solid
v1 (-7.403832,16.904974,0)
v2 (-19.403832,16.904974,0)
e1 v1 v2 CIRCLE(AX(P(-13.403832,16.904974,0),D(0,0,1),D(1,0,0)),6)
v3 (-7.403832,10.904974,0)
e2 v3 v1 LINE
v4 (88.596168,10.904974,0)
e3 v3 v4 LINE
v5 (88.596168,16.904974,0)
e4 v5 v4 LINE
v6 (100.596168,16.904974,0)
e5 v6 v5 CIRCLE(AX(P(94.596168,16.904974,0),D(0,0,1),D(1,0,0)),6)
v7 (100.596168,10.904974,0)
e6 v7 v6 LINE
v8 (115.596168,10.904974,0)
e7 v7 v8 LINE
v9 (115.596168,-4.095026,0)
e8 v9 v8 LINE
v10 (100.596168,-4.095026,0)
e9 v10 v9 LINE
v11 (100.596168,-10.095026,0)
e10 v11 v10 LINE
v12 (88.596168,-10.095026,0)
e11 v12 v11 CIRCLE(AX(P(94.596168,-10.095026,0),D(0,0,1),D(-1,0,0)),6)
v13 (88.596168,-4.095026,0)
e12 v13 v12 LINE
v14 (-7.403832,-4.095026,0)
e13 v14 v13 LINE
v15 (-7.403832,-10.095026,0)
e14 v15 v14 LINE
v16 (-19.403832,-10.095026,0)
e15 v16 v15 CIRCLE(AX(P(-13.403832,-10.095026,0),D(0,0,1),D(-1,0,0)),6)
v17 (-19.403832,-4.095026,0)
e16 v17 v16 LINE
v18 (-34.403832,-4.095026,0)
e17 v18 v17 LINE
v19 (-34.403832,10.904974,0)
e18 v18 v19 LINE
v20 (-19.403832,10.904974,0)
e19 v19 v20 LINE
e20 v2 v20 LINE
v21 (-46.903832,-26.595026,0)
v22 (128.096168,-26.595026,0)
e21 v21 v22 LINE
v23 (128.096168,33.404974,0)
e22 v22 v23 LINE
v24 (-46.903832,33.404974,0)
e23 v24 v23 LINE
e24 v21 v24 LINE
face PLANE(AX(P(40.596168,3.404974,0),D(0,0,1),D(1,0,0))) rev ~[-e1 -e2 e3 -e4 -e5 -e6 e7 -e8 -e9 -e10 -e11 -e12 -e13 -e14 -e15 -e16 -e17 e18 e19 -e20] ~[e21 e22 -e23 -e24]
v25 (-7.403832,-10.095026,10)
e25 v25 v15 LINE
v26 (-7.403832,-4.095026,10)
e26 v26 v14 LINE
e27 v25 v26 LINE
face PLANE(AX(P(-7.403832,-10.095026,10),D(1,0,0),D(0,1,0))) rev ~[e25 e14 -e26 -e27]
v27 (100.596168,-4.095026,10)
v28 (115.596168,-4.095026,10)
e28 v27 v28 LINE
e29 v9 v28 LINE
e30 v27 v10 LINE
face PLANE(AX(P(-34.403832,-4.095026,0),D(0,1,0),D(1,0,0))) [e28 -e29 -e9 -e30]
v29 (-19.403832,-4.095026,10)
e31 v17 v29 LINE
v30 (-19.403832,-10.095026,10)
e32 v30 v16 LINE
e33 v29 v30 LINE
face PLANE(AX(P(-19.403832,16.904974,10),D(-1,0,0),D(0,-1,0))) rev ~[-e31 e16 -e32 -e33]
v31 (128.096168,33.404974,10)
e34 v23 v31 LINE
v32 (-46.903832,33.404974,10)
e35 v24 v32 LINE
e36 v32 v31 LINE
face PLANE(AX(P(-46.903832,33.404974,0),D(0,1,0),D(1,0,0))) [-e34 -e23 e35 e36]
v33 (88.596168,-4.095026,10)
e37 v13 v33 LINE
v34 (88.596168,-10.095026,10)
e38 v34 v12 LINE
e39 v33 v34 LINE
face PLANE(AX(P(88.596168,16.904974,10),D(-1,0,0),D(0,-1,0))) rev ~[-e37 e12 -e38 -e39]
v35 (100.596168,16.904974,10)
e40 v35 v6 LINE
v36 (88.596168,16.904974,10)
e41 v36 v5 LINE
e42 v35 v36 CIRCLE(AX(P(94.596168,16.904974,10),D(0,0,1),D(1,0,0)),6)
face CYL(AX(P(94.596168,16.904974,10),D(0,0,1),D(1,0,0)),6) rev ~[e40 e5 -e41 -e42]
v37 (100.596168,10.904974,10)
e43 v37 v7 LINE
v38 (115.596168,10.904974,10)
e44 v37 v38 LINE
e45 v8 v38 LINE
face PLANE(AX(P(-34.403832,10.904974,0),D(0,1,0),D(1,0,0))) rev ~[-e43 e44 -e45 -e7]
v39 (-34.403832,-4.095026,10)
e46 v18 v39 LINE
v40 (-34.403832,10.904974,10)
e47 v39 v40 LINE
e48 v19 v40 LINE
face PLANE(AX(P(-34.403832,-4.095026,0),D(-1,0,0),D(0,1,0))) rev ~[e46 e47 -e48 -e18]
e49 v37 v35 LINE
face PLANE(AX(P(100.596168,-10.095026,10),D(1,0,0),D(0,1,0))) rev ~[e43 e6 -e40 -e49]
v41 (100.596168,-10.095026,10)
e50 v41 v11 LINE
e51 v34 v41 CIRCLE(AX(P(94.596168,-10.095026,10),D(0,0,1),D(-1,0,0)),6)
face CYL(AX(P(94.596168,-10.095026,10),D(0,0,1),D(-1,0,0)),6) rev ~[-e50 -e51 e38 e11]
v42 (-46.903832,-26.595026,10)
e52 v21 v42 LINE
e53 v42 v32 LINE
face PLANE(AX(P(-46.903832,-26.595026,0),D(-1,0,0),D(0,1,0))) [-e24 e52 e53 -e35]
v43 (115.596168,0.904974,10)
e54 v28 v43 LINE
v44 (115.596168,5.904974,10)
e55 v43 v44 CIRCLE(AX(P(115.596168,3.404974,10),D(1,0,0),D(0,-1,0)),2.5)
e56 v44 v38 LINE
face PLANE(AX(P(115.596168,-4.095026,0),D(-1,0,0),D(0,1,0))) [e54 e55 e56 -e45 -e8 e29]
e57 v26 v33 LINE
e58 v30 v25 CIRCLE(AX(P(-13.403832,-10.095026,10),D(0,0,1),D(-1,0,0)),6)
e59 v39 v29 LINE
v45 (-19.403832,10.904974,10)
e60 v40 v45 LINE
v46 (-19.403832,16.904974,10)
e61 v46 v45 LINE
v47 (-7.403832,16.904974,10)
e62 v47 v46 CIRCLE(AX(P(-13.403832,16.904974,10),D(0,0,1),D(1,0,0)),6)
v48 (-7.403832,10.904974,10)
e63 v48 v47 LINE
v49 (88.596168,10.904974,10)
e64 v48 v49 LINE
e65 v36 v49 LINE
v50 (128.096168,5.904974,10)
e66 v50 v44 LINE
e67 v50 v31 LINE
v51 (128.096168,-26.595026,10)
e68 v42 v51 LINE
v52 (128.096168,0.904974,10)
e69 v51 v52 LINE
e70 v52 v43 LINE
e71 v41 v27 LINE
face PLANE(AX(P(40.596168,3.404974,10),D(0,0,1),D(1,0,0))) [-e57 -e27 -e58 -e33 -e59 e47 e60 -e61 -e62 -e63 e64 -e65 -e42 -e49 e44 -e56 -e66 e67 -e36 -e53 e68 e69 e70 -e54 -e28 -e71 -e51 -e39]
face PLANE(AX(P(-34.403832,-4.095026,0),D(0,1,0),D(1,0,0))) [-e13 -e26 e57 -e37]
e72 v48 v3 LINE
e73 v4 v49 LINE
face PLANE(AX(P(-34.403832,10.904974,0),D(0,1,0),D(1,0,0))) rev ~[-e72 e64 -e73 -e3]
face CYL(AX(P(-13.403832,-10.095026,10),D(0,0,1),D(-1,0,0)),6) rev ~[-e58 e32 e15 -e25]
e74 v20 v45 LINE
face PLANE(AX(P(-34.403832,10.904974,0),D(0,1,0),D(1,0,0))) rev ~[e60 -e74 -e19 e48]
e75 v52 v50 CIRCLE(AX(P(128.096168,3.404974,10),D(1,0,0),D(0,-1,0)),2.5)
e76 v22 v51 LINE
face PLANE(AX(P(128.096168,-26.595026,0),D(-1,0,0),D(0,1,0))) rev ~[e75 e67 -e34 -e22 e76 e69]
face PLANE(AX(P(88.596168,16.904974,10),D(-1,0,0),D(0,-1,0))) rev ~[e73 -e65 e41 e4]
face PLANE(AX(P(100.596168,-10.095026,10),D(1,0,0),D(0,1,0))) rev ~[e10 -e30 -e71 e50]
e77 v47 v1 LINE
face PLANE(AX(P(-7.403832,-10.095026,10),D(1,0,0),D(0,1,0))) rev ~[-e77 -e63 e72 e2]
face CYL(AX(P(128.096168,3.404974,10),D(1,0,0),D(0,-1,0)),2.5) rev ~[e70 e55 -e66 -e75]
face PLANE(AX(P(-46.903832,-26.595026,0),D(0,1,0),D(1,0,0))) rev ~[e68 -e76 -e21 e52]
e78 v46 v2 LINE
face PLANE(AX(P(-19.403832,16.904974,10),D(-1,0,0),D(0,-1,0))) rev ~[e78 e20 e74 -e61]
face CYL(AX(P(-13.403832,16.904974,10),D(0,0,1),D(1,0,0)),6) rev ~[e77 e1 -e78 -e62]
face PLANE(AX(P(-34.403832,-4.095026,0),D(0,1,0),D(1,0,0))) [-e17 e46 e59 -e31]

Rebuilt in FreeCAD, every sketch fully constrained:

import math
import FreeCAD as App
import Part
import Sketcher
from FreeCAD import Vector
Q = App.Units.Quantity


def add_polygon(sketch, points):
    """Adds a closed chain of lines whose ends are joined by coincident constraints."""
    first, n = sketch.GeometryCount, len(points)
    for a, b in zip(points, points[1:] + points[:1]):
        sketch.addGeometry(Part.LineSegment(App.Vector(*a, 0), App.Vector(*b, 0)), False)
    for i in range(n):
        sketch.addConstraint(Sketcher.Constraint("Coincident", first + i, 2, first + (i + 1) % n, 1))

doc = App.newDocument("Part")
body = doc.addObject("PartDesign::Body", "Body")

# Sketch on XY plane
sketch1 = body.newObject("Sketcher::SketchObject", "Sketch")
sketch1.AttachmentSupport = (doc.getObject("XY_Plane"), [""])
sketch1.MapMode = "FlatFace"
add_polygon(sketch1, [(-46.903832, 33.404974), (-46.903832, -26.595026), (128.096168, -26.595026), (128.096168, 33.404974)])  # lines 0-3
add_polygon(sketch1, [(115.596168, -4.095026), (-34.403832, -4.095026), (-34.403832, 10.904974), (115.596168, 10.904974)])  # lines 4-7
sketch1.addConstraint(Sketcher.Constraint("Vertical", 0))
sketch1.addConstraint(Sketcher.Constraint("Horizontal", 1))
sketch1.addConstraint(Sketcher.Constraint("Vertical", 2))
sketch1.addConstraint(Sketcher.Constraint("Horizontal", 3))
sketch1.addConstraint(Sketcher.Constraint("Horizontal", 4))
sketch1.addConstraint(Sketcher.Constraint("Vertical", 5))
sketch1.addConstraint(Sketcher.Constraint("Horizontal", 6))
sketch1.addConstraint(Sketcher.Constraint("Vertical", 7))
sketch1.addConstraint(Sketcher.Constraint("DistanceX", 1, 1, 1, 2, Q("175 mm")))
sketch1.addConstraint(Sketcher.Constraint("DistanceX", 4, 2, 4, 1, Q("150 mm")))
sketch1.addConstraint(Sketcher.Constraint("DistanceY", 0, 2, 0, 1, Q("60 mm")))
sketch1.addConstraint(Sketcher.Constraint("DistanceY", 5, 1, 5, 2, Q("15 mm")))
sketch1.addConstraint(Sketcher.Constraint("DistanceX", 0, 2, 4, 2, Q("12.5 mm")))
sketch1.addConstraint(Sketcher.Constraint("DistanceY", 0, 2, 4, 2, Q("22.5 mm")))
sketch1.addConstraint(Sketcher.Constraint("DistanceX", 0, 2, -1, 1, Q("46.903832 mm")))
sketch1.addConstraint(Sketcher.Constraint("DistanceY", 0, 2, -1, 1, Q("26.595026 mm")))
pad1 = body.newObject("PartDesign::Pad", "Pad")
pad1.Profile = sketch1
pad1.Length = 10

# Sketch on YZ plane
sketch2 = body.newObject("Sketcher::SketchObject", "Sketch001")
sketch2.AttachmentSupport = (doc.getObject("YZ_Plane"), [""])
sketch2.MapMode = "FlatFace"
sketch2.AttachmentOffset = App.Placement(Vector(0, 0, 128.096168), App.Rotation())
sketch2.addGeometry(Part.ArcOfCircle(Part.Circle(Vector(3.404974, 10, 0), Vector(0, 0, 1), 2.5), math.radians(180), math.radians(360)), False)
sketch2.addGeometry(Part.LineSegment(Vector(5.904974, 10, 0), Vector(0.904974, 10, 0)), False)
sketch2.addConstraint(Sketcher.Constraint("Coincident", 0, 1, 1, 2))
sketch2.addConstraint(Sketcher.Constraint("Coincident", 1, 1, 0, 2))
sketch2.addConstraint(Sketcher.Constraint("Horizontal", 1))
sketch2.addConstraint(Sketcher.Constraint("Radius", 0, Q("2.5 mm")))
sketch2.addConstraint(Sketcher.Constraint("DistanceY", -1, 1, 0, 3, Q("10 mm")))
sketch2.addConstraint(Sketcher.Constraint("DistanceY", -1, 1, 0, 1, Q("10 mm")))
sketch2.addConstraint(Sketcher.Constraint("DistanceX", -1, 1, 0, 3, Q("3.404974 mm")))
pocket1 = body.newObject("PartDesign::Pocket", "Pocket")
pocket1.Profile = sketch2
pocket1.Length = 25

# Sketch on XY plane
sketch3 = body.newObject("Sketcher::SketchObject", "Sketch002")
sketch3.AttachmentSupport = (doc.getObject("XY_Plane"), [""])
sketch3.MapMode = "FlatFace"
sketch3.AttachmentOffset = App.Placement(Vector(0, 0, 10), App.Rotation())
sketch3.addGeometry(Part.ArcOfCircle(Part.Circle(Vector(-13.403832, 16.904974, 0), Vector(0, 0, 1), 6), math.radians(0), math.radians(180)), False)
sketch3.addGeometry(Part.LineSegment(Vector(-19.403832, 16.904974, 0), Vector(-19.403832, -10.095026, 0)), False)
sketch3.addGeometry(Part.ArcOfCircle(Part.Circle(Vector(-13.403832, -10.095026, 0), Vector(0, 0, 1), 6), math.radians(180), math.radians(360)), False)
sketch3.addGeometry(Part.LineSegment(Vector(-7.403832, -10.095026, 0), Vector(-7.403832, 16.904974, 0)), False)
sketch3.addGeometry(Part.ArcOfCircle(Part.Circle(Vector(94.596168, -10.095026, 0), Vector(0, 0, 1), 6), math.radians(180), math.radians(360)), False)
sketch3.addGeometry(Part.LineSegment(Vector(100.596168, -10.095026, 0), Vector(100.596168, 16.904974, 0)), False)
sketch3.addGeometry(Part.ArcOfCircle(Part.Circle(Vector(94.596168, 16.904974, 0), Vector(0, 0, 1), 6), math.radians(0), math.radians(180)), False)
sketch3.addGeometry(Part.LineSegment(Vector(88.596168, 16.904974, 0), Vector(88.596168, -10.095026, 0)), False)
sketch3.addConstraint(Sketcher.Constraint("Tangent", 0, 2, 1, 1))
sketch3.addConstraint(Sketcher.Constraint("Tangent", 1, 2, 2, 1))
sketch3.addConstraint(Sketcher.Constraint("Tangent", 2, 2, 3, 1))
sketch3.addConstraint(Sketcher.Constraint("Tangent", 3, 2, 0, 1))
sketch3.addConstraint(Sketcher.Constraint("Tangent", 4, 2, 5, 1))
sketch3.addConstraint(Sketcher.Constraint("Tangent", 5, 2, 6, 1))
sketch3.addConstraint(Sketcher.Constraint("Tangent", 6, 2, 7, 1))
sketch3.addConstraint(Sketcher.Constraint("Tangent", 7, 2, 4, 1))
sketch3.addConstraint(Sketcher.Constraint("Vertical", 1))
sketch3.addConstraint(Sketcher.Constraint("Vertical", 3))
sketch3.addConstraint(Sketcher.Constraint("Vertical", 5))
sketch3.addConstraint(Sketcher.Constraint("Vertical", 7))
sketch3.addConstraint(Sketcher.Constraint("Equal", 2, 4))
sketch3.addConstraint(Sketcher.Constraint("Horizontal", 2, 3, 4, 3))
sketch3.addConstraint(Sketcher.Constraint("Horizontal", 0, 3, 6, 3))
sketch3.addConstraint(Sketcher.Constraint("Radius", 0, Q("6 mm")))
sketch3.addConstraint(Sketcher.Constraint("DistanceY", 1, 2, 1, 1, Q("27 mm")))
sketch3.addConstraint(Sketcher.Constraint("DistanceX", 2, 3, 4, 3, Q("108 mm")))
sketch3.addConstraint(Sketcher.Constraint("DistanceX", 0, 3, -1, 1, Q("13.403832 mm")))
sketch3.addConstraint(Sketcher.Constraint("DistanceY", -1, 1, 0, 3, Q("16.904974 mm")))
pocket2 = body.newObject("PartDesign::Pocket", "Pocket001")
pocket2.Profile = sketch3
pocket2.Length = 25

doc.recompute()
